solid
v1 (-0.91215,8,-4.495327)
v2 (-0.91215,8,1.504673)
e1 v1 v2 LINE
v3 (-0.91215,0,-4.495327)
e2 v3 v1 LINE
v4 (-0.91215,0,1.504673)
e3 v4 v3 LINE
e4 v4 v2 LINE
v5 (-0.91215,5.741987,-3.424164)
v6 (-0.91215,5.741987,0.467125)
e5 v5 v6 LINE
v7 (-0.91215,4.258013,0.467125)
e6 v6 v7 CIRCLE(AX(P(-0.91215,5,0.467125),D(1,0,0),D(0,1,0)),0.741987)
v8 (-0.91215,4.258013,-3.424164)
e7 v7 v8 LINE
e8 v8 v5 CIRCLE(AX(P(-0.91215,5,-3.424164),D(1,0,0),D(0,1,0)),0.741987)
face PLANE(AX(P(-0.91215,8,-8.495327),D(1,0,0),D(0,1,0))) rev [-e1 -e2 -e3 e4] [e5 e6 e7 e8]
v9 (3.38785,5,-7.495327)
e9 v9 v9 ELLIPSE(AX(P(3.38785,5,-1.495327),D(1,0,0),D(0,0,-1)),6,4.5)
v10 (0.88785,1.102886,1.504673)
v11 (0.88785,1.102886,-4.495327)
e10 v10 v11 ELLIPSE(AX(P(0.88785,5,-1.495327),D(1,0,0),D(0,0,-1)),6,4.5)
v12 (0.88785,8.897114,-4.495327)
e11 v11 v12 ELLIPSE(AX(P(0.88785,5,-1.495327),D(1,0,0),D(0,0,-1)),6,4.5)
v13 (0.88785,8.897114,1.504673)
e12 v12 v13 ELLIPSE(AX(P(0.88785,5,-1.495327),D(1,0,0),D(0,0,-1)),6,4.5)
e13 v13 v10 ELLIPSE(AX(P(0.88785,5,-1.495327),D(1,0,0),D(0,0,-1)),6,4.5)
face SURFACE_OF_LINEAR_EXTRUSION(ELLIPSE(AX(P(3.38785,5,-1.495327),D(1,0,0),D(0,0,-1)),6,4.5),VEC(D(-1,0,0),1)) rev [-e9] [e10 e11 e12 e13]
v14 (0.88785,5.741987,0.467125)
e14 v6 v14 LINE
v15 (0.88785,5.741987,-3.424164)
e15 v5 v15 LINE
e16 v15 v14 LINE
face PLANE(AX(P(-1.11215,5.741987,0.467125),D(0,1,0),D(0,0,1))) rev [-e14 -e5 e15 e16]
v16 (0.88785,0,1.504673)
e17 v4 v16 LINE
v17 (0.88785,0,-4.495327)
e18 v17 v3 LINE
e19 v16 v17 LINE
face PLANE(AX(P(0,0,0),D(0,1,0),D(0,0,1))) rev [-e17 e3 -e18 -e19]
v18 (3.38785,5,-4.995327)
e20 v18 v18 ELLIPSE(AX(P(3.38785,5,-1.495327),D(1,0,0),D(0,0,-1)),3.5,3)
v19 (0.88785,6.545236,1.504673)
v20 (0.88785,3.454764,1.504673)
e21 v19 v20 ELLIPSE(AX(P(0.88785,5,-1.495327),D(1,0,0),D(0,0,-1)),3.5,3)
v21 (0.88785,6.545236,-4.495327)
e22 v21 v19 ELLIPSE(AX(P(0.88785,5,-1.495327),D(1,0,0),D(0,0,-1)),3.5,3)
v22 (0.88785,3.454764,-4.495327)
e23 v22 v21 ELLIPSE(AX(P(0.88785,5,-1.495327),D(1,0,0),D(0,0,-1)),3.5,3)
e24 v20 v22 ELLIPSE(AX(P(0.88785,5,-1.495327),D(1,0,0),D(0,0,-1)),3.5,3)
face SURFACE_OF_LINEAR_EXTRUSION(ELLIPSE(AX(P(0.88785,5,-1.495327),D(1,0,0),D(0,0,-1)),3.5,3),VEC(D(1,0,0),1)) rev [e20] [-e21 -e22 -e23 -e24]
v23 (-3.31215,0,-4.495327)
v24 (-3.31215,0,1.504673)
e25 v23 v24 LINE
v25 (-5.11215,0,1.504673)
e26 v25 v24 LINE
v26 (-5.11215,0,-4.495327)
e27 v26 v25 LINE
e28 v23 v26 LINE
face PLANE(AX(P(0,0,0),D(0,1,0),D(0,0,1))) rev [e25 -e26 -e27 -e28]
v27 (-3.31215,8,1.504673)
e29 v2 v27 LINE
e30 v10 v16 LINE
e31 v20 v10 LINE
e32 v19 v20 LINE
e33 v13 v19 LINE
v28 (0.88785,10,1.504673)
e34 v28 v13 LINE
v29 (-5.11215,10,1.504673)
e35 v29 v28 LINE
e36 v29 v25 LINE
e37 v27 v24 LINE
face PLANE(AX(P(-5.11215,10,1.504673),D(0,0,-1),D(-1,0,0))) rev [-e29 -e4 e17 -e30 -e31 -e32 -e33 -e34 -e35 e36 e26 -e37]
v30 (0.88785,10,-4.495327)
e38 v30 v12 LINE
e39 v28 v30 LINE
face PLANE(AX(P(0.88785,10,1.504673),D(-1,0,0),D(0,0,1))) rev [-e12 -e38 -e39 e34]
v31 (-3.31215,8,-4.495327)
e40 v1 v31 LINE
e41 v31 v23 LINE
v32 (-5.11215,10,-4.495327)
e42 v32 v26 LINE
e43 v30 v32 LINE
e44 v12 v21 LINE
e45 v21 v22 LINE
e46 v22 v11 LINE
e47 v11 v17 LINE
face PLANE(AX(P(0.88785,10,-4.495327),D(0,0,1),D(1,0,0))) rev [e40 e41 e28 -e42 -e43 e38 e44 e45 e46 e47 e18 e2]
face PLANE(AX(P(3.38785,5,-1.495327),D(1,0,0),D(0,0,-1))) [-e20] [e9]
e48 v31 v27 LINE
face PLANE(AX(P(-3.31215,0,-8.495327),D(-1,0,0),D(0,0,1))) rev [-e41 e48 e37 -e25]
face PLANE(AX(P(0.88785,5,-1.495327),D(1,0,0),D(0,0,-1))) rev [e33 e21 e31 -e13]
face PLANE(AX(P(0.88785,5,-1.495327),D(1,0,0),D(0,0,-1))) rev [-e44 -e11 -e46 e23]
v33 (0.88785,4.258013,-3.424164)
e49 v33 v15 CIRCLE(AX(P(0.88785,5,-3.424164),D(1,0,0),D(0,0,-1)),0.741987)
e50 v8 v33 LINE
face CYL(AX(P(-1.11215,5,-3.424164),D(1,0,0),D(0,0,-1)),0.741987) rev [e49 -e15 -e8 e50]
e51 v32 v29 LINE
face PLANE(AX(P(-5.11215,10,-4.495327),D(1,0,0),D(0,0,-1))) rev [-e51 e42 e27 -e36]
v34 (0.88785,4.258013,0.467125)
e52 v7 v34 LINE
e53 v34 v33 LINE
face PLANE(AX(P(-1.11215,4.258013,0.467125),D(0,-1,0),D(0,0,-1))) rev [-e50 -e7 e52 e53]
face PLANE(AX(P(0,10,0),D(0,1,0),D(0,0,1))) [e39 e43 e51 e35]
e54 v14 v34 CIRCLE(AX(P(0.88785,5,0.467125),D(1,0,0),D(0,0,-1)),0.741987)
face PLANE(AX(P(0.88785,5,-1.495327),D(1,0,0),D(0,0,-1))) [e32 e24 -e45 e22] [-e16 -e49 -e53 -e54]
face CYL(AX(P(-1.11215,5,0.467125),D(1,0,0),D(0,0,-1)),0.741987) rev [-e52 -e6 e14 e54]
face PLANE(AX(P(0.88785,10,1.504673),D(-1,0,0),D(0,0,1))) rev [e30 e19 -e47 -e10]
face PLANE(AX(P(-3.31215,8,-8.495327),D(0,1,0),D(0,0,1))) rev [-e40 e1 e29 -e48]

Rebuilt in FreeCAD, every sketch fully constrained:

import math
import FreeCAD as App
import Part
import Sketcher
from FreeCAD import Vector


def add_polygon(sketch, points):
    """Adds a closed chain of lines whose ends are joined by coincident constraints."""
    first, n = sketch.GeometryCount, len(points)
    for a, b in zip(points, points[1:] + points[:1]):
        sketch.addGeometry(Part.LineSegment(App.Vector(*a, 0), App.Vector(*b, 0)), False)
    for i in range(n):
        sketch.addConstraint(Sketcher.Constraint("Coincident", first + i, 2, first + (i + 1) % n, 1))

doc = App.newDocument("Part")
body = doc.addObject("PartDesign::Body", "Body")

# Sketch on XZ plane
sketch1 = body.newObject("Sketcher::SketchObject", "Sketch")
sketch1.AttachmentSupport = (doc.getObject("XZ_Plane"), [""])
sketch1.MapMode = "FlatFace"
add_polygon(sketch1, [(-5.11215, -4.495327), (-5.11215, 1.504673), (0.88785, 1.504673), (0.88785, -4.495327)])  # lines 0-3
sketch1.addConstraint([
    Sketcher.Constraint("Vertical", 0),
    Sketcher.Constraint("Horizontal", 1),
    Sketcher.Constraint("Vertical", 2),
    Sketcher.Constraint("Horizontal", 3),
    Sketcher.Constraint("Equal", 3, 0),
    Sketcher.Constraint("DistanceX", 1, 1, 1, 2, 6.0),
    Sketcher.Constraint("DistanceX", 0, 2, -1, 1, 5.11215),
    Sketcher.Constraint("DistanceY", -1, 1, 0, 2, 1.504673),
])
pad1 = body.newObject("PartDesign::Pad", "Pad")
pad1.Profile = sketch1
pad1.Length = 10
pad1.Reversed = True

# Sketch on XY plane
sketch2 = body.newObject("Sketcher::SketchObject", "Sketch001")
sketch2.AttachmentSupport = (doc.getObject("XY_Plane"), [""])
sketch2.MapMode = "FlatFace"
sketch2.AttachmentOffset = App.Placement(Vector(0, 0, 1.504673), App.Rotation())
add_polygon(sketch2, [(-3.31215, 8), (-3.31215, 0), (-0.91215, 0), (-0.91215, 8)])  # lines 0-3
sketch2.addConstraint([
    Sketcher.Constraint("Vertical", 0),
    Sketcher.Constraint("Horizontal", 1),
    Sketcher.Constraint("Vertical", 2),
    Sketcher.Constraint("Horizontal", 3),
    Sketcher.Constraint("PointOnObject", 0, 2, -1),
    Sketcher.Constraint("DistanceY", 0, 2, 0, 1, 8.0),
    Sketcher.Constraint("DistanceX", 1, 1, 1, 2, 2.4),
    Sketcher.Constraint("DistanceX", 0, 2, -1, 1, 3.31215),
])
pocket1 = body.newObject("PartDesign::Pocket", "Pocket")
pocket1.Profile = sketch2
pocket1.Length = 10

# Sketch on YZ plane
sketch3 = body.newObject("Sketcher::SketchObject", "Sketch002")
sketch3.AttachmentSupport = (doc.getObject("YZ_Plane"), [""])
sketch3.MapMode = "FlatFace"
sketch3.AttachmentOffset = App.Placement(Vector(0, 0, 0.88785), App.Rotation())
sketch3.addGeometry(Part.Ellipse(Vector(5, -7.495327, 0), Vector(9.5, -1.495327, 0), Vector(5, -1.495327, 0)), False)
sketch3.addConstraint(Sketcher.Constraint("Block", 0))
pad2 = body.newObject("PartDesign::Pad", "Pad001")
pad2.Profile = sketch3
pad2.Length = 2.5

# Sketch on YZ plane
sketch4 = body.newObject("Sketcher::SketchObject", "Sketch003")
sketch4.AttachmentSupport = (doc.getObject("YZ_Plane"), [""])
sketch4.MapMode = "FlatFace"
sketch4.AttachmentOffset = App.Placement(Vector(0, 0, 3.38785), App.Rotation())
sketch4.addGeometry(Part.Ellipse(Vector(5, 2.004673, 0), Vector(2, -1.495327, 0), Vector(5, -1.495327, 0)), False)
sketch4.addConstraint(Sketcher.Constraint("Block", 0))
pocket2 = body.newObject("PartDesign::Pocket", "Pocket001")
pocket2.Profile = sketch4
pocket2.Length = 2.5

# Sketch on YZ plane
sketch5 = body.newObject("Sketcher::SketchObject", "Sketch004")
sketch5.AttachmentSupport = (doc.getObject("YZ_Plane"), [""])
sketch5.MapMode = "FlatFace"
sketch5.AttachmentOffset = App.Placement(Vector(0, 0, 0.88785), App.Rotation())
sketch5.addGeometry([
    Part.LineSegment(Vector(5.741987, -3.424164, 0), Vector(5.741987, 0.467125, 0)),
    Part.ArcOfCircle(Part.Circle(Vector(5, 0.467125, 0), Vector(0, 0, 1), 0.741987), math.radians(0), math.radians(180)),
    Part.LineSegment(Vector(4.258013, 0.467125, 0), Vector(4.258013, -3.424164, 0)),
    Part.ArcOfCircle(Part.Circle(Vector(5, -3.424164, 0), Vector(0, 0, 1), 0.741987), math.radians(180), math.radians(360)),
], False)
sketch5.addConstraint([
    Sketcher.Constraint("Tangent", 0, 2, 1, 1),
    Sketcher.Constraint("Tangent", 1, 2, 2, 1),
    Sketcher.Constraint("Tangent", 2, 2, 3, 1),
    Sketcher.Constraint("Tangent", 3, 2, 0, 1),
    Sketcher.Constraint("Vertical", 0),
    Sketcher.Constraint("Vertical", 2),
    Sketcher.Constraint("DistanceX", -1, 1, 1, 3, 5.0),
    Sketcher.Constraint("Radius", 1, 0.741987),
    Sketcher.Constraint("DistanceY", 0, 1, 0, 2, 3.891289),
    Sketcher.Constraint("DistanceY", -1, 1, 1, 3, 0.467125),
])
pocket3 = body.newObject("PartDesign::Pocket", "Pocket002")
pocket3.Profile = sketch5
pocket3.Length = 2

doc.recompute()
